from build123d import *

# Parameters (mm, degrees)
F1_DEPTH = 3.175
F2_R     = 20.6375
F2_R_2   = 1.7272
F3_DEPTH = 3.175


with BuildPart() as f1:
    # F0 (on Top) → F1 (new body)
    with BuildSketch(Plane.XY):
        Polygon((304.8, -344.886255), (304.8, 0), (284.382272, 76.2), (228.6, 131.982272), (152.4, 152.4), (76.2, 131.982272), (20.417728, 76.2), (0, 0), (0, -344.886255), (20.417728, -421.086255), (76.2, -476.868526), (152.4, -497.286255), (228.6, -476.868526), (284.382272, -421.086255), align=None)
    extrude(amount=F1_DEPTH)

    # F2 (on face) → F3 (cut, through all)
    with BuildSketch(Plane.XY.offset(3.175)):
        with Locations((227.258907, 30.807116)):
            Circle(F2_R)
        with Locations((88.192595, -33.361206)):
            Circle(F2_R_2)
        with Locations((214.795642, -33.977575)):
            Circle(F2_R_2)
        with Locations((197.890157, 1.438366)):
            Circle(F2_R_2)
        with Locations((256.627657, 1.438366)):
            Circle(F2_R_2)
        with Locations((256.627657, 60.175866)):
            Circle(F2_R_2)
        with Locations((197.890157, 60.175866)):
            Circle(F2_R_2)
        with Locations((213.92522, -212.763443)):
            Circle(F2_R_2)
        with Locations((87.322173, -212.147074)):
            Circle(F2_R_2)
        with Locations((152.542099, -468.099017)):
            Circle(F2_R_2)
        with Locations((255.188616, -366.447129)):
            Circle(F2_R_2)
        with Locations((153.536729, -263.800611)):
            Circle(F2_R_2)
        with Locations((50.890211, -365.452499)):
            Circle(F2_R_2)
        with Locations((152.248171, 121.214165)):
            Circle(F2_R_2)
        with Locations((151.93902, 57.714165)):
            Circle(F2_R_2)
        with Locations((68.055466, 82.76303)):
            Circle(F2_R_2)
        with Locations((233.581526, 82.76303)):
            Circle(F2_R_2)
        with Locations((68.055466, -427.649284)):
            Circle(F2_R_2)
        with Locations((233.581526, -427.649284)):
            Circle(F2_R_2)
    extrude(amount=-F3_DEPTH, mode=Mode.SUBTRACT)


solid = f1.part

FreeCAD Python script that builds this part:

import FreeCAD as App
import Part
import Sketcher

V = App.Vector
Q = App.Units.Quantity


def add_polygon(sketch, points):
    """Adds a closed chain of lines whose ends are joined by coincident constraints."""
    first, n = sketch.GeometryCount, len(points)
    for a, b in zip(points, points[1:] + points[:1]):
        sketch.addGeometry(Part.LineSegment(App.Vector(*a, 0), App.Vector(*b, 0)), False)
    for i in range(n):
        sketch.addConstraint(Sketcher.Constraint("Coincident", first + i, 2, first + (i + 1) % n, 1))

doc = App.newDocument("Part")
body = doc.addObject("PartDesign::Body", "Body")

# Sketch on XY plane
sketch1 = body.newObject("Sketcher::SketchObject", "Sketch")
sketch1.AttachmentSupport = (doc.getObject("XY_Plane"), [""])
sketch1.MapMode = "FlatFace"
add_polygon(sketch1, [(305, -345), (305, 0), (284, 76), (229, 132), (152, 152), (76, 132), (20, 76), (0, 0), (0, -345), (20, -421), (76, -477), (152, -497), (229, -477), (284, -421)])  # lines 0-13
sketch1.addConstraint(Sketcher.Constraint("Vertical", 0))
sketch1.addConstraint(Sketcher.Constraint("Vertical", 7))
sketch1.addConstraint(Sketcher.Constraint("Coincident", 6, 2, -1, 1))
sketch1.addConstraint(Sketcher.Constraint("PointOnObject", 0, 2, -1))
sketch1.addConstraint(Sketcher.Constraint("Perpendicular", 1, 4))
sketch1.addConstraint(Sketcher.Constraint("Perpendicular", 2, 5))
sketch1.addConstraint(Sketcher.Constraint("Perpendicular", 3, 6))
sketch1.addConstraint(Sketcher.Constraint("Perpendicular", 4, 8))
sketch1.addConstraint(Sketcher.Constraint("Perpendicular", 5, 9))
sketch1.addConstraint(Sketcher.Constraint("Perpendicular", 6, 10))
sketch1.addConstraint(Sketcher.Constraint("Perpendicular", 8, 11))
sketch1.addConstraint(Sketcher.Constraint("Perpendicular", 9, 12))
sketch1.addConstraint(Sketcher.Constraint("Perpendicular", 10, 13))
sketch1.addConstraint(Sketcher.Constraint("Horizontal", 2, 2, 4, 2))
sketch1.addConstraint(Sketcher.Constraint("Horizontal", 1, 2, 5, 2))
sketch1.addConstraint(Sketcher.Constraint("Horizontal", 9, 2, 11, 2))
sketch1.addConstraint(Sketcher.Constraint("Horizontal", 8, 2, 12, 2))
sketch1.addConstraint(Sketcher.Constraint("Horizontal", 7, 2, 13, 2))
sketch1.addConstraint(Sketcher.Constraint("Vertical", 5, 2, 8, 2))
sketch1.addConstraint(Sketcher.Constraint("Vertical", 4, 2, 9, 2))
sketch1.addConstraint(Sketcher.Constraint("Vertical", 3, 2, 10, 2))
sketch1.addConstraint(Sketcher.Constraint("Vertical", 2, 2, 11, 2))
sketch1.addConstraint(Sketcher.Constraint("Equal", 1, 2))
sketch1.addConstraint(Sketcher.Constraint("Equal", 2, 3))
sketch1.addConstraint(Sketcher.Constraint("DistanceX", -1, 1, 0, 2, Q("12 in")))
sketch1.addConstraint(Sketcher.Constraint("DistanceY", -1, 1, 1, 2, Q("3 in")))
sketch1.addConstraint(Sketcher.Constraint("DistanceY", 0, 1, 0, 2, Q("344.886255 mm")))
pad1 = body.newObject("PartDesign::Pad", "Pad")
pad1.Profile = sketch1
pad1.Length = Q("0.125 in")

# Sketch on XY plane
sketch2 = body.newObject("Sketcher::SketchObject", "Sketch001")
sketch2.AttachmentSupport = (doc.getObject("XY_Plane"), [""])
sketch2.MapMode = "FlatFace"
sketch2.AttachmentOffset = App.Placement(V(0, 0, 0.125 * 25.4), App.Rotation())
sketch2.addGeometry(Part.Circle(V(227.3, 30.8, 0), V(0, 0, 1), 20.6), False)
sketch2.addGeometry(Part.Circle(V(88.2, -33.4, 0), V(0, 0, 1), 1.7), False)
sketch2.addGeometry(Part.Circle(V(214.8, -34, 0), V(0, 0, 1), 1.7), False)
sketch2.addGeometry(Part.Circle(V(197.9, 1.4, 0), V(0, 0, 1), 1.7), False)
sketch2.addGeometry(Part.Circle(V(256.6, 1.4, 0), V(0, 0, 1), 1.7), False)
sketch2.addGeometry(Part.Circle(V(256.6, 60.2, 0), V(0, 0, 1), 1.7), False)
sketch2.addGeometry(Part.Circle(V(197.9, 60.2, 0), V(0, 0, 1), 1.7), False)
sketch2.addGeometry(Part.Circle(V(213.9, -212.8, 0), V(0, 0, 1), 1.7), False)
sketch2.addGeometry(Part.Circle(V(87.3, -212.1, 0), V(0, 0, 1), 1.7), False)
sketch2.addGeometry(Part.Circle(V(152.5, -468.1, 0), V(0, 0, 1), 1.7), False)
sketch2.addGeometry(Part.Circle(V(255.2, -366.4, 0), V(0, 0, 1), 1.7), False)
sketch2.addGeometry(Part.Circle(V(153.5, -263.8, 0), V(0, 0, 1), 1.7), False)
sketch2.addGeometry(Part.Circle(V(50.9, -365.5, 0), V(0, 0, 1), 1.7), False)
sketch2.addGeometry(Part.Circle(V(152.2, 121.2, 0), V(0, 0, 1), 1.7), False)
sketch2.addGeometry(Part.Circle(V(151.9, 57.7, 0), V(0, 0, 1), 1.7), False)
sketch2.addGeometry(Part.Circle(V(68.1, 82.8, 0), V(0, 0, 1), 1.7), False)
sketch2.addGeometry(Part.Circle(V(233.6, 82.8, 0), V(0, 0, 1), 1.7), False)
sketch2.addGeometry(Part.Circle(V(68.1, -427.6, 0), V(0, 0, 1), 1.7), False)
sketch2.addGeometry(Part.Circle(V(233.6, -427.6, 0), V(0, 0, 1), 1.7), False)
sketch2.addConstraint(Sketcher.Constraint("Equal", 1, 2))
sketch2.addConstraint(Sketcher.Constraint("Equal", 2, 3))
sketch2.addConstraint(Sketcher.Constraint("Equal", 3, 4))
sketch2.addConstraint(Sketcher.Constraint("Equal", 4, 5))
sketch2.addConstraint(Sketcher.Constraint("Equal", 5, 6))
sketch2.addConstraint(Sketcher.Constraint("Equal", 6, 7))
sketch2.addConstraint(Sketcher.Constraint("Equal", 7, 8))
sketch2.addConstraint(Sketcher.Constraint("Equal", 8, 9))
sketch2.addConstraint(Sketcher.Constraint("Equal", 9, 10))
sketch2.addConstraint(Sketcher.Constraint("Equal", 10, 11))
sketch2.addConstraint(Sketcher.Constraint("Equal", 11, 12))
sketch2.addConstraint(Sketcher.Constraint("Equal", 12, 13))
sketch2.addConstraint(Sketcher.Constraint("Equal", 13, 14))
sketch2.addConstraint(Sketcher.Constraint("Equal", 14, 15))
sketch2.addConstraint(Sketcher.Constraint("Equal", 15, 16))
sketch2.addConstraint(Sketcher.Constraint("Equal", 16, 17))
sketch2.addConstraint(Sketcher.Constraint("Equal", 17, 18))
sketch2.addConstraint(Sketcher.Constraint("Horizontal", 3, 3, 4, 3))
sketch2.addConstraint(Sketcher.Constraint("Horizontal", 5, 3, 6, 3))
sketch2.addConstraint(Sketcher.Constraint("Horizontal", 15, 3, 16, 3))
sketch2.addConstraint(Sketcher.Constraint("Horizontal", 17, 3, 18, 3))
sketch2.addConstraint(Sketcher.Constraint("Vertical", 4, 3, 5, 3))
sketch2.addConstraint(Sketcher.Constraint("Vertical", 3, 3, 6, 3))
sketch2.addConstraint(Sketcher.Constraint("Vertical", 15, 3, 17, 3))
sketch2.addConstraint(Sketcher.Constraint("Vertical", 16, 3, 18, 3))
sketch2.addConstraint(Sketcher.Constraint("Diameter", 0, Q("1.625 in")))
sketch2.addConstraint(Sketcher.Constraint("Diameter", 1, Q("0.136 in")))
sketch2.addConstraint(Sketcher.Constraint("DistanceY", 14, 3, 13, 3, Q("2.5 in")))
sketch2.addConstraint(Sketcher.Constraint("DistanceX", 3, 3, 0, 3, Q("1.15625 in")))
sketch2.addConstraint(Sketcher.Constraint("DistanceY", 3, 3, 0, 3, Q("1.15625 in")))
sketch2.addConstraint(Sketcher.Constraint("DistanceX", 0, 3, 4, 3, Q("1.15625 in")))
sketch2.addConstraint(Sketcher.Constraint("DistanceY", 0, 3, 5, 3, Q("1.15625 in")))
sketch2.addConstraint(Sketcher.Constraint("DistanceY", 2, 3, -1, 1, Q("1.3376998 in")))
sketch2.addConstraint(Sketcher.Constraint("DistanceX", 14, 3, 6, 3, Q("1.8090999 in")))
sketch2.addConstraint(Sketcher.Constraint("DistanceX", -1, 1, 9, 3, Q("152.542099 mm")))
sketch2.addConstraint(Sketcher.Constraint("DistanceY", 12, 3, -1, 1, Q("365.452499 mm")))
sketch2.addConstraint(Sketcher.Constraint("DistanceY", 8, 3, 2, 3, Q("178.169499 mm")))
sketch2.addConstraint(Sketcher.Constraint("DistanceY", 6, 3, 13, 3, Q("61.038299 mm")))
sketch2.addConstraint(Sketcher.Constraint("DistanceX", -1, 1, 2, 3, Q("214.795642 mm")))
sketch2.addConstraint(Sketcher.Constraint("DistanceX", -1, 1, 7, 3, Q("213.92522 mm")))
sketch2.addConstraint(Sketcher.Constraint("DistanceY", 10, 3, -1, 1, Q("366.447129 mm")))
sketch2.addConstraint(Sketcher.Constraint("DistanceX", -1, 1, 11, 3, Q("153.536729 mm")))
sketch2.addConstraint(Sketcher.Constraint("DistanceY", 11, 3, -1, 1, Q("263.800611 mm")))
sketch2.addConstraint(Sketcher.Constraint("DistanceX", -1, 1, 12, 3, Q("50.890211 mm")))
sketch2.addConstraint(Sketcher.Constraint("DistanceX", -1, 1, 13, 3, Q("152.248171 mm")))
sketch2.addConstraint(Sketcher.Constraint("DistanceX", -1, 1, 14, 3, Q("151.93902 mm")))
sketch2.addConstraint(Sketcher.Constraint("DistanceY", -1, 1, 15, 3, Q("82.76303 mm")))
sketch2.addConstraint(Sketcher.Constraint("DistanceX", 1, 3, 0, 3, Q("139.066312 mm")))
sketch2.addConstraint(Sketcher.Constraint("DistanceY", 2, 3, 0, 3, Q("64.784691 mm")))
sketch2.addConstraint(Sketcher.Constraint("DistanceY", 2, 3, 1, 3, Q("0.616369 mm")))
sketch2.addConstraint(Sketcher.Constraint("DistanceY", 7, 3, 2, 3, Q("178.785868 mm")))
sketch2.addConstraint(Sketcher.Constraint("DistanceX", 8, 3, 1, 3, Q("0.870422 mm")))
sketch2.addConstraint(Sketcher.Constraint("DistanceY", 9, 3, 2, 3, Q("434.121442 mm")))
sketch2.addConstraint(Sketcher.Constraint("DistanceX", 10, 3, 4, 3, Q("1.439041 mm")))
sketch2.addConstraint(Sketcher.Constraint("DistanceX", 15, 3, 1, 3, Q("20.137129 mm")))
sketch2.addConstraint(Sketcher.Constraint("DistanceX", 16, 3, 5, 3, Q("23.046131 mm")))
sketch2.addConstraint(Sketcher.Constraint("DistanceY", 17, 3, 8, 3, Q("215.50221 mm")))
pocket1 = body.newObject("PartDesign::Pocket", "Pocket")
pocket1.Profile = sketch2
pocket1.Type = "ThroughAll"

doc.recompute()
